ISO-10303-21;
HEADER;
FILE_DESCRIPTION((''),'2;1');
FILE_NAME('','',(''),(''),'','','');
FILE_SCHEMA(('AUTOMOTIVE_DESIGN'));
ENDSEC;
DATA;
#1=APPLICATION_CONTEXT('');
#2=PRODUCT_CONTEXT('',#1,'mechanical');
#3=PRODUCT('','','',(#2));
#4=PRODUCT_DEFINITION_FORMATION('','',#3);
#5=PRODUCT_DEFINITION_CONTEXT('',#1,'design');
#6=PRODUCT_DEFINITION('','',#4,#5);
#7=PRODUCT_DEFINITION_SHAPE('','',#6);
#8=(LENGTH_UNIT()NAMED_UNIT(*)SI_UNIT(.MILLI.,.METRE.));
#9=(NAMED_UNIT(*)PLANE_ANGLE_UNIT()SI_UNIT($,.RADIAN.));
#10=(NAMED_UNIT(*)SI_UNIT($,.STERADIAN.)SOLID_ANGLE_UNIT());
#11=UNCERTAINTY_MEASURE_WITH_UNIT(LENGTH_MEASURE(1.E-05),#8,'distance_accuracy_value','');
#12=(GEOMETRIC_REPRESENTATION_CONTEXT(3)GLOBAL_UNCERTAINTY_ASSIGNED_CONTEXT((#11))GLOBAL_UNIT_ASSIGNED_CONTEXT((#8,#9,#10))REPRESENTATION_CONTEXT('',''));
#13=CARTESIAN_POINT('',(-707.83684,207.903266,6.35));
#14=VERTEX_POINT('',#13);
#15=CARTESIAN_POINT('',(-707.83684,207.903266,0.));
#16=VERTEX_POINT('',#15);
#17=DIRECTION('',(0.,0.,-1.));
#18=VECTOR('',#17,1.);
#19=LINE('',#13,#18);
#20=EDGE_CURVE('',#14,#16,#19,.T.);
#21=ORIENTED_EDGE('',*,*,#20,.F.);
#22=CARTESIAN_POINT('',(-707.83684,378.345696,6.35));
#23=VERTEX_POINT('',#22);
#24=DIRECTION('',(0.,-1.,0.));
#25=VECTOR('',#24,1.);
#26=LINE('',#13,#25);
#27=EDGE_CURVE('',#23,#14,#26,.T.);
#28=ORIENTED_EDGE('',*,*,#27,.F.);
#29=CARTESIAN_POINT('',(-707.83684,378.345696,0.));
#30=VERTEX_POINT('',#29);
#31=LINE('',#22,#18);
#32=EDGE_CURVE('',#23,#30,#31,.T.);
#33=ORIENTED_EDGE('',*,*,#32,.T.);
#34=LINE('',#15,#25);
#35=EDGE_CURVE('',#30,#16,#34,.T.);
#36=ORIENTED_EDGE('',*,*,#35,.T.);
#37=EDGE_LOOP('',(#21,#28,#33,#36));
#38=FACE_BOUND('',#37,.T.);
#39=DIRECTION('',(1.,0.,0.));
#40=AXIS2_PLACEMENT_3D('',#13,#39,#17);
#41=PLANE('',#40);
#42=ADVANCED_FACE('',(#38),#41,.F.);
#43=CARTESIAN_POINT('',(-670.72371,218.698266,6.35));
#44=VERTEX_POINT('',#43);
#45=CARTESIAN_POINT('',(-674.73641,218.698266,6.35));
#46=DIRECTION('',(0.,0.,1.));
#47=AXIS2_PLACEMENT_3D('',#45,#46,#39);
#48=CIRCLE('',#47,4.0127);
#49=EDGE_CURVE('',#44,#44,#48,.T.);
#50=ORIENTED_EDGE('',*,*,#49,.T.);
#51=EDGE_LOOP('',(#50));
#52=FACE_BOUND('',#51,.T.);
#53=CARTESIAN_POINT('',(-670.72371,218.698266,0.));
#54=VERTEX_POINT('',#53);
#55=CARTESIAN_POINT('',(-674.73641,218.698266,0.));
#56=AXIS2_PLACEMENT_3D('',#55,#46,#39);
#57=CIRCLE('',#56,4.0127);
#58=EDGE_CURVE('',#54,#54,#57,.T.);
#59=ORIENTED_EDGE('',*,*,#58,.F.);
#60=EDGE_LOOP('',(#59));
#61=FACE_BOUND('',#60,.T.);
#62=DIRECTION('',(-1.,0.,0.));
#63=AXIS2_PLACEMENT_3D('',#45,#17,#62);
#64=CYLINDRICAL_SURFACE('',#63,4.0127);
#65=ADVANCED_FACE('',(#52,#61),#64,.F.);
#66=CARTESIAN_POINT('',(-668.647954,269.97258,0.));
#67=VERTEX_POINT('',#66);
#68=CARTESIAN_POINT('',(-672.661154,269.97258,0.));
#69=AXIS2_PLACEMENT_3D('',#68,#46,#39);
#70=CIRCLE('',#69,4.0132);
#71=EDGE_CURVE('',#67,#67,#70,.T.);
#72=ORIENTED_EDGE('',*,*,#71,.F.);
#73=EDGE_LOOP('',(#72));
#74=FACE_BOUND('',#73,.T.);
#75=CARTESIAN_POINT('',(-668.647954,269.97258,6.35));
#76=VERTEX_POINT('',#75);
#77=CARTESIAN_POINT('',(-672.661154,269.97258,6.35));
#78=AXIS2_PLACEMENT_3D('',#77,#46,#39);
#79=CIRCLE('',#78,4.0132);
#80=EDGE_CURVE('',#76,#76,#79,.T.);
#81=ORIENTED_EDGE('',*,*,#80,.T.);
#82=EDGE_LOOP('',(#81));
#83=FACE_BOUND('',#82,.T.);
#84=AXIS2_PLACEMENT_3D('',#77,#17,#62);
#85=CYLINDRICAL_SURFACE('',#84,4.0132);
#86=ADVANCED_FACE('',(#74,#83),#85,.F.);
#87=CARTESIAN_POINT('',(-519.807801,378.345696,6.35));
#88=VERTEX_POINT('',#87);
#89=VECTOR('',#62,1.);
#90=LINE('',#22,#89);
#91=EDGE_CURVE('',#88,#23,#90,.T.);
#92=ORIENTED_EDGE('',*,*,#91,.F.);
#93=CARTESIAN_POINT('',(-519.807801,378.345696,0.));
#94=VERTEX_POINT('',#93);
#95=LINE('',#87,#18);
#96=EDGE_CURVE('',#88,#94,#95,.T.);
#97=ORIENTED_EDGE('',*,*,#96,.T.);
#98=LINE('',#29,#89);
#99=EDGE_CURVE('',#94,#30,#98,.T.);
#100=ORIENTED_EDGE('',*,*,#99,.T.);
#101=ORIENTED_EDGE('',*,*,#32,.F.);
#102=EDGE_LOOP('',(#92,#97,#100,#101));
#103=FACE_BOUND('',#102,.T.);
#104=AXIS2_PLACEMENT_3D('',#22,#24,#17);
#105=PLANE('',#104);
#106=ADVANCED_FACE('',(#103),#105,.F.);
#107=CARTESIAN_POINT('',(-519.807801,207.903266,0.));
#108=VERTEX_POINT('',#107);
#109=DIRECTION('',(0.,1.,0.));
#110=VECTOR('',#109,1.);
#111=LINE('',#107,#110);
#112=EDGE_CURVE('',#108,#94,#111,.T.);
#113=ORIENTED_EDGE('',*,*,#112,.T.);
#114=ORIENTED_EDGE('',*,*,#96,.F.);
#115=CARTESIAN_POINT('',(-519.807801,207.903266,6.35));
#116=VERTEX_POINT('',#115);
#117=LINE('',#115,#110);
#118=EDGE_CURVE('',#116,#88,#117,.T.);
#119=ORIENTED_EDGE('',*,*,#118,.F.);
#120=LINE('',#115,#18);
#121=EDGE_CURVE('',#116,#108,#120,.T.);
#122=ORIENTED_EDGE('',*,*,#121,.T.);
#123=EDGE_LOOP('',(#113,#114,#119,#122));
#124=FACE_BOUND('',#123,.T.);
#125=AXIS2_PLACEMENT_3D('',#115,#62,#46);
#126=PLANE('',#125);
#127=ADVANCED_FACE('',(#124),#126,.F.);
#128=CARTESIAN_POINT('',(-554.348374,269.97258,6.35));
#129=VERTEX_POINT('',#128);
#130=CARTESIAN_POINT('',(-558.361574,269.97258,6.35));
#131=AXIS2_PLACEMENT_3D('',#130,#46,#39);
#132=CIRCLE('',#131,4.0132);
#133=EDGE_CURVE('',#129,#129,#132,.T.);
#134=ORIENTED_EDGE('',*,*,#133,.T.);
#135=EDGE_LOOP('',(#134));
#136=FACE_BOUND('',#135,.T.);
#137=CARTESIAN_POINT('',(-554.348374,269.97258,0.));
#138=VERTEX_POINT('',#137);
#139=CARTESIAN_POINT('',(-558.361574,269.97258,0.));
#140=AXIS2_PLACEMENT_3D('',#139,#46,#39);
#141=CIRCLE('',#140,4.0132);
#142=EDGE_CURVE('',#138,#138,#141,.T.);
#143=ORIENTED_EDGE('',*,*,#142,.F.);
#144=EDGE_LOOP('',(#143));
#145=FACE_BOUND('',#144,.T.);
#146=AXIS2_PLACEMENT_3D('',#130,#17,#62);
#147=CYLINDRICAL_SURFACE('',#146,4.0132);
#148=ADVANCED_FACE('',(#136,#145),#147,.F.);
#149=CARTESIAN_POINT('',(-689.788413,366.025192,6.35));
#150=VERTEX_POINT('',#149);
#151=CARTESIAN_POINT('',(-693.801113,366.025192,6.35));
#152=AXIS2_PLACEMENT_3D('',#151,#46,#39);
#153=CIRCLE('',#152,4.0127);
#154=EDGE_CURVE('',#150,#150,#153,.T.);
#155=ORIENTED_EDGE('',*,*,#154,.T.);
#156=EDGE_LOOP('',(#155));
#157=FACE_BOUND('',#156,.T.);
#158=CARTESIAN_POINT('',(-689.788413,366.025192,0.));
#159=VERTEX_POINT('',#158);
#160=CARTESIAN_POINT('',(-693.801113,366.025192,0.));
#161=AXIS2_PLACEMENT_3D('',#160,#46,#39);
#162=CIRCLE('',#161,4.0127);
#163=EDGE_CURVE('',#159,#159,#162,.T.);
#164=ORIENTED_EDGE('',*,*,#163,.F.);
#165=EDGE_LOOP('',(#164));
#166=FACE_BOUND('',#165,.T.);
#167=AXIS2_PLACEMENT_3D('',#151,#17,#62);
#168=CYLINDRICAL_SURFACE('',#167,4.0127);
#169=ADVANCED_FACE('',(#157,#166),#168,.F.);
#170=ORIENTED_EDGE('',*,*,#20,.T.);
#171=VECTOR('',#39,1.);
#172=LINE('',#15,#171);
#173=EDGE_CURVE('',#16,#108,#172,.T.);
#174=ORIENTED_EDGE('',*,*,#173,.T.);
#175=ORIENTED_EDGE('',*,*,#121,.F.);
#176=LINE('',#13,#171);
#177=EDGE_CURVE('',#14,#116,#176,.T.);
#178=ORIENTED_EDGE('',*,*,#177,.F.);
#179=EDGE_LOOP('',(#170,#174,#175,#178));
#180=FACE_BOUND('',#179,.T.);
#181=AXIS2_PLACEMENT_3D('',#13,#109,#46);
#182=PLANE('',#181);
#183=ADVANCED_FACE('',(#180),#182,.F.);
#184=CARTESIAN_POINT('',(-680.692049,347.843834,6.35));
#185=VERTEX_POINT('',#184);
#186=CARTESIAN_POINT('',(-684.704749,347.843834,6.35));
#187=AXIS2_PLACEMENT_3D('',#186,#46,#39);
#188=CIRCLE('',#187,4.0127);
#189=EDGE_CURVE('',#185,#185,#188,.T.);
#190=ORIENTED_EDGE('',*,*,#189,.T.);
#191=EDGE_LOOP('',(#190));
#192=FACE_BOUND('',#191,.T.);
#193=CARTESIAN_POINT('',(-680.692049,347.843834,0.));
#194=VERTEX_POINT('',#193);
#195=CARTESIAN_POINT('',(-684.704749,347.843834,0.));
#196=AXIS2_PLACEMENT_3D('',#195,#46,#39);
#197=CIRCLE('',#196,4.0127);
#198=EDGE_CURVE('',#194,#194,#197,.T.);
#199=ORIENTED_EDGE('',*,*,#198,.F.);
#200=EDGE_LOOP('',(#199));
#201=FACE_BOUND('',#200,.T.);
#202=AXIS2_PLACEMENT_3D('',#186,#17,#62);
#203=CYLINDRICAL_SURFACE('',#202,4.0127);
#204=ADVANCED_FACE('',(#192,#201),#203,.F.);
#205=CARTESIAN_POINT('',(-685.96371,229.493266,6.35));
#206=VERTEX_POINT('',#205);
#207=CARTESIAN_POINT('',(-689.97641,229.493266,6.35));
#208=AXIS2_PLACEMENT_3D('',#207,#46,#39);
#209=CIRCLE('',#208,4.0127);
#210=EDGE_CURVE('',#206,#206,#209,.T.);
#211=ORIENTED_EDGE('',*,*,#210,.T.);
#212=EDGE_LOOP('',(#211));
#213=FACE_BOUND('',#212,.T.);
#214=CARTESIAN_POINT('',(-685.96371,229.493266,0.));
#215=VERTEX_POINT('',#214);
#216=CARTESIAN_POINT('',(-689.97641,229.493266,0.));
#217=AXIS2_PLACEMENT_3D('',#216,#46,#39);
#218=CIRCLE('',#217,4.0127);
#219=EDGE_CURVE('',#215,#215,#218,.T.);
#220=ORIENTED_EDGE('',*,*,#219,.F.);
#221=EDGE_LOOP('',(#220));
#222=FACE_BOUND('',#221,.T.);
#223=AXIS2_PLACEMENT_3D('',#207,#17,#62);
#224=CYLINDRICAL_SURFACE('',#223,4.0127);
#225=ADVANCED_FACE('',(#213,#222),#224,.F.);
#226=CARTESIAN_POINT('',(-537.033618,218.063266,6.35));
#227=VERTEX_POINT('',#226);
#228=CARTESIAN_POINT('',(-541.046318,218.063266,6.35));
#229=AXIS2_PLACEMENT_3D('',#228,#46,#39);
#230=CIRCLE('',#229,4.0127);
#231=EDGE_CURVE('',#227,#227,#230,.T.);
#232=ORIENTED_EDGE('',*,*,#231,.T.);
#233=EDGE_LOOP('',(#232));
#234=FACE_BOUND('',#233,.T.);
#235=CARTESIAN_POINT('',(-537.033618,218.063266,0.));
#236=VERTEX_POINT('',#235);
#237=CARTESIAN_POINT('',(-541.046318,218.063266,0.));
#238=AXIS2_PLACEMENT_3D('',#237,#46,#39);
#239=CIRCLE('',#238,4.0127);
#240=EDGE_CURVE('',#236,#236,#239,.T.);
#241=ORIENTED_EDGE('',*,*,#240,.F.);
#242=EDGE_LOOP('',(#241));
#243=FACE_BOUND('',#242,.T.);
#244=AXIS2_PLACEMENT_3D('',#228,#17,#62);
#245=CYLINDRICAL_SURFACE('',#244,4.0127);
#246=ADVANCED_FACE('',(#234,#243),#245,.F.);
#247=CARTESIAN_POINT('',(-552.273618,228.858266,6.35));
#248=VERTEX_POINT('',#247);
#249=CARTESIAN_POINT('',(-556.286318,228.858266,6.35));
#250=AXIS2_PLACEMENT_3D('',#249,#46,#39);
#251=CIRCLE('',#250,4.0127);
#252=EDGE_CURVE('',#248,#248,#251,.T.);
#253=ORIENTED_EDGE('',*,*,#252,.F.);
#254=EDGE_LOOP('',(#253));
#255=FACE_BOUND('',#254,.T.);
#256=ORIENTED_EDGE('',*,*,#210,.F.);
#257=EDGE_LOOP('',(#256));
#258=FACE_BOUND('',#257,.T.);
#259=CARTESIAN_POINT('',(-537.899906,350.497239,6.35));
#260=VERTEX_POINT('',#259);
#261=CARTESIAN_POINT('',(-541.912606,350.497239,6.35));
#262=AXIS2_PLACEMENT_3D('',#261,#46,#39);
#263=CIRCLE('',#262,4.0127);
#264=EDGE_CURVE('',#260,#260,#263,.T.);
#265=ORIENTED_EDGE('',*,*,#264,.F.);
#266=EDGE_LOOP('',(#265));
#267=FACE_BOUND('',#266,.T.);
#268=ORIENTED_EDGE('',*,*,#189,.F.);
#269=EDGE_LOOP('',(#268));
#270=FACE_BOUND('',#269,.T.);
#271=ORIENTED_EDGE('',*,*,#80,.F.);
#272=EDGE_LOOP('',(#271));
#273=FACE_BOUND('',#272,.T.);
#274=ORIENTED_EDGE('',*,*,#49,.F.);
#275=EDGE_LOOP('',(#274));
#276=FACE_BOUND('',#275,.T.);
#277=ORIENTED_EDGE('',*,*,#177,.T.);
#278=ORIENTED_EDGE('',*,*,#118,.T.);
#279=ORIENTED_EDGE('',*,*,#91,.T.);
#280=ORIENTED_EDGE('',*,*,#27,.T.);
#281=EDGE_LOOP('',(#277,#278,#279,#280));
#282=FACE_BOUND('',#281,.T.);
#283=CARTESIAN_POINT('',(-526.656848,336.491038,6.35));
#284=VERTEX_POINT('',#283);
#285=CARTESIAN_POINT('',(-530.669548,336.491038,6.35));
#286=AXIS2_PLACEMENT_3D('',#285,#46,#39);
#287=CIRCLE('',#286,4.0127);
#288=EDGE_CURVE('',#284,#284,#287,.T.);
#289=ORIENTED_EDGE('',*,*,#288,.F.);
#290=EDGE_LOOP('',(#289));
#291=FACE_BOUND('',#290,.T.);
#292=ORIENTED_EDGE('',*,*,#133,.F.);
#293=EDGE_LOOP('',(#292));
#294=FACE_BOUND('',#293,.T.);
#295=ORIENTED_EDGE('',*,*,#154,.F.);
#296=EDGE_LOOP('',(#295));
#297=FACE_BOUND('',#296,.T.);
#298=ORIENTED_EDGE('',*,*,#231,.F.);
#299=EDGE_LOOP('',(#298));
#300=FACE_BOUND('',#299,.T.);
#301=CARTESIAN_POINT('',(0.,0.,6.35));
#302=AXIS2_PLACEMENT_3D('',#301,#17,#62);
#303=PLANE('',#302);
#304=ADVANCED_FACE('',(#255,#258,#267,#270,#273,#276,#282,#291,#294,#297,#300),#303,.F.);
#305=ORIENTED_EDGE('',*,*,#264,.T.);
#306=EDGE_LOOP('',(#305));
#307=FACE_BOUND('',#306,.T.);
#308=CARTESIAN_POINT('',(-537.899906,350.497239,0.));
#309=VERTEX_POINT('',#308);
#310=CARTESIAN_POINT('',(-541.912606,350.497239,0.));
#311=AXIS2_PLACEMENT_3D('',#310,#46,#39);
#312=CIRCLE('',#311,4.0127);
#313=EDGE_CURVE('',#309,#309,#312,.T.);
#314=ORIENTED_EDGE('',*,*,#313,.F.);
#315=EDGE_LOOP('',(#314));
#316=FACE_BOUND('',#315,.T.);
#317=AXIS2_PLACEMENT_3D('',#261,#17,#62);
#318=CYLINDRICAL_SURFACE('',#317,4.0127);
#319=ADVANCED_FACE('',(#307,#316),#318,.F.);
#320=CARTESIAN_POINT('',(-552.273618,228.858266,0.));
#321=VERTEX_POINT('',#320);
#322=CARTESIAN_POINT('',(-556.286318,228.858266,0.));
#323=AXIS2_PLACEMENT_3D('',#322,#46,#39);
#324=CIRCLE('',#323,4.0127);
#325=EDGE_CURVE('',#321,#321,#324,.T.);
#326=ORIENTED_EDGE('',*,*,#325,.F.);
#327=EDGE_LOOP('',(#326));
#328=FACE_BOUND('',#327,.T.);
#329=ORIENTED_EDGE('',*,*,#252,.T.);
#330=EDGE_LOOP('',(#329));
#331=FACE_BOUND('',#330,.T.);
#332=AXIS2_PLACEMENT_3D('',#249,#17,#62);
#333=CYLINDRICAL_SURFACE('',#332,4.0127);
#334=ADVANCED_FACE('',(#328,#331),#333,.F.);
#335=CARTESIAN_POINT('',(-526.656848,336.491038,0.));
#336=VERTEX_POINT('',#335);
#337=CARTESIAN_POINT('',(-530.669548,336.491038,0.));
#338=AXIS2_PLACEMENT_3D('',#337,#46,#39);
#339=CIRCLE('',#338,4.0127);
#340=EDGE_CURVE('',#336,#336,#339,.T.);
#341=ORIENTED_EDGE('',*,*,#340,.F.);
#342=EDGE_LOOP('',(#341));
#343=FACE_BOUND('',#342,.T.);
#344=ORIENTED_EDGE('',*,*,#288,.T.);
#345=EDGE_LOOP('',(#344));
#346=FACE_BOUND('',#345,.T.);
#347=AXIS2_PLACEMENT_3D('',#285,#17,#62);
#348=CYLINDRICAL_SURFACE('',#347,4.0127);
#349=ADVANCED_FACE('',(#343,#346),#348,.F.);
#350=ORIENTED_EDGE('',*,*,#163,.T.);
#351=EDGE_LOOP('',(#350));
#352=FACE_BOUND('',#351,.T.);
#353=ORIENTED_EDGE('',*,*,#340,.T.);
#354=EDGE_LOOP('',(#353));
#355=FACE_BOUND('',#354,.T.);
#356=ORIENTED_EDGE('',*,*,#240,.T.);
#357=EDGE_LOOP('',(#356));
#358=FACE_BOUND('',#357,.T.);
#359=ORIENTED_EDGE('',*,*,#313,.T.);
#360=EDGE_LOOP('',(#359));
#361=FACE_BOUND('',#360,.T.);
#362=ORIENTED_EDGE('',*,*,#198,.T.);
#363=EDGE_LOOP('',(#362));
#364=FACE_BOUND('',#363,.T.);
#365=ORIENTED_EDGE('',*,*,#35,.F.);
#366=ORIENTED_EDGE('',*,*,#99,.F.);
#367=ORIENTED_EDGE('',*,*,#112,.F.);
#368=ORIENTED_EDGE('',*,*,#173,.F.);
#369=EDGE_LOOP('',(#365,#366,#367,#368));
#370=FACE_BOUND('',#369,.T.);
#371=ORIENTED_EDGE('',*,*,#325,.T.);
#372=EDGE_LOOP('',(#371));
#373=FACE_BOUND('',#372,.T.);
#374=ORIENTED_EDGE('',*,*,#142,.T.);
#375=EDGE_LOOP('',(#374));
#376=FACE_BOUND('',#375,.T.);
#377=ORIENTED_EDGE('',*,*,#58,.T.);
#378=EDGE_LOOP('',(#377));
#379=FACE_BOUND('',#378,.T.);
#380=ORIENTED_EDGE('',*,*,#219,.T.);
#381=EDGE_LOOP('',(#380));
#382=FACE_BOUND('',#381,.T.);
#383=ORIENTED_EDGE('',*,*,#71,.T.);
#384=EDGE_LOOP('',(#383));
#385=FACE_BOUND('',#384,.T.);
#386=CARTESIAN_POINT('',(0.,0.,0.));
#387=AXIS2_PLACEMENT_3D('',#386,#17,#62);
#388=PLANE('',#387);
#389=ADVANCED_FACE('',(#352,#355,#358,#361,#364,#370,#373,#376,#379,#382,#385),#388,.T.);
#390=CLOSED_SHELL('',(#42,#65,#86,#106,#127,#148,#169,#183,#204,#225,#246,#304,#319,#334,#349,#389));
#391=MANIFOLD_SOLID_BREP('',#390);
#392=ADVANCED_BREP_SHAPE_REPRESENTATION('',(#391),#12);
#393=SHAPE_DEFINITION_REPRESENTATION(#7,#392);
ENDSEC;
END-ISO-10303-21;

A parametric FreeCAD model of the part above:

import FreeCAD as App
import Part
import Sketcher
Q = App.Units.Quantity


def add_polygon(sketch, points):
    """Adds a closed chain of lines whose ends are joined by coincident constraints."""
    first, n = sketch.GeometryCount, len(points)
    for a, b in zip(points, points[1:] + points[:1]):
        sketch.addGeometry(Part.LineSegment(App.Vector(*a, 0), App.Vector(*b, 0)), False)
    for i in range(n):
        sketch.addConstraint(Sketcher.Constraint("Coincident", first + i, 2, first + (i + 1) % n, 1))

doc = App.newDocument("Part")
body = doc.addObject("PartDesign::Body", "Body")

sketch1 = doc.addObject("Sketcher::SketchObject", "Sketch")
body.addObject(sketch1)
sketch1.AttachmentSupport = (doc.XY_Plane, [""])
sketch1.MapMode = "FlatFace"
add_polygon(sketch1, [(-707.8, 378.3), (-707.8, 207.9), (-519.8, 207.9), (-519.8, 378.3)])
sketch1.addGeometry(Part.Circle(App.Vector(-690, 229.5, 0), App.Vector(0, 0, 1), 4), False)
sketch1.addGeometry(Part.Circle(App.Vector(-674.7, 218.7, 0), App.Vector(0, 0, 1), 4), False)
sketch1.addGeometry(Part.Circle(App.Vector(-672.7, 270, 0), App.Vector(0, 0, 1), 4), False)
sketch1.addGeometry(Part.Circle(App.Vector(-556.3, 228.9, 0), App.Vector(0, 0, 1), 4), False)
sketch1.addGeometry(Part.Circle(App.Vector(-541, 218.1, 0), App.Vector(0, 0, 1), 4), False)
sketch1.addGeometry(Part.Circle(App.Vector(-558.4, 270, 0), App.Vector(0, 0, 1), 4), False)
sketch1.addGeometry(Part.Circle(App.Vector(-684.7, 347.8, 0), App.Vector(0, 0, 1), 4), False)
sketch1.addGeometry(Part.Circle(App.Vector(-693.8, 366, 0), App.Vector(0, 0, 1), 4), False)
sketch1.addGeometry(Part.Circle(App.Vector(-530.7, 336.5, 0), App.Vector(0, 0, 1), 4), False)
sketch1.addGeometry(Part.Circle(App.Vector(-541.9, 350.5, 0), App.Vector(0, 0, 1), 4), False)
sketch1.addConstraint([
    Sketcher.Constraint("Vertical", 0),
    Sketcher.Constraint("Horizontal", 1),
    Sketcher.Constraint("Vertical", 2),
    Sketcher.Constraint("Horizontal", 3),
    Sketcher.Constraint("Equal", 4, 5),
    Sketcher.Constraint("Equal", 5, 7),
    Sketcher.Constraint("Equal", 7, 8),
    Sketcher.Constraint("Equal", 6, 9),
    Sketcher.Constraint("Equal", 8, 10),
    Sketcher.Constraint("Equal", 10, 11),
    Sketcher.Constraint("Equal", 11, 12),
    Sketcher.Constraint("Equal", 12, 13),
    Sketcher.Constraint("Horizontal", 6, 3, 9, 3),
    Sketcher.Constraint("Diameter", 6, Q("0.316 in")),
    Sketcher.Constraint("DistanceX", 4, 3, 5, 3, Q("0.6 in")),
    Sketcher.Constraint("DistanceY", 5, 3, 7, 3, Q("0.4 in")),
    Sketcher.Constraint("DistanceX", 7, 3, 8, 3, Q("0.6 in")),
    Sketcher.Constraint("DistanceY", 1, 2, 8, 3, Q("0.4 in")),
    Sketcher.Constraint("Diameter", 4, 8.0254),
    Sketcher.Constraint("DistanceY", 8, 3, 4, 3, Q("0.45 in")),
    Sketcher.Constraint("DistanceY", 5, 3, 4, 3, Q("0.425 in")),
    Sketcher.Constraint("DistanceY", -1, 1, 2, 2, Q("14.8954998 in")),
    Sketcher.Constraint("DistanceX", 1, 1, 1, 2, 188.029039),
    Sketcher.Constraint("DistanceY", 0, 2, 0, 1, 170.44243),
    Sketcher.Constraint("DistanceX", 1, 2, -1, 1, 519.807801),
    Sketcher.Constraint("DistanceX", 10, 3, 12, 3, 154.035201),
    Sketcher.Constraint("DistanceY", 12, 3, 13, 3, 14.0062),
    Sketcher.Constraint("DistanceX", 4, 3, -1, 1, 689.97641),
    Sketcher.Constraint("DistanceY", -1, 1, 6, 3, 269.97258),
    Sketcher.Constraint("DistanceX", 10, 3, -1, 1, 684.704749),
    Sketcher.Constraint("DistanceY", -1, 1, 12, 3, 336.491038),
    Sketcher.Constraint("DistanceX", 5, 3, 7, 3, 118.450092),
    Sketcher.Constraint("DistanceX", 6, 3, 9, 3, 114.29958),
    Sketcher.Constraint("DistanceY", 4, 3, 10, 3, 118.350568),
    Sketcher.Constraint("DistanceY", 10, 3, 11, 3, 18.181358),
    Sketcher.Constraint("DistanceX", 11, 3, 6, 3, 21.139959),
    Sketcher.Constraint("DistanceX", 13, 3, 12, 3, 11.243058),
    Sketcher.Constraint("DistanceX", 6, 3, -1, 1, 672.661154),
])
pad1 = doc.addObject("PartDesign::Pad", "Pad")
body.addObject(pad1)
pad1.Profile = sketch1
pad1.Length = Q("0.25 in")

doc.recompute()
